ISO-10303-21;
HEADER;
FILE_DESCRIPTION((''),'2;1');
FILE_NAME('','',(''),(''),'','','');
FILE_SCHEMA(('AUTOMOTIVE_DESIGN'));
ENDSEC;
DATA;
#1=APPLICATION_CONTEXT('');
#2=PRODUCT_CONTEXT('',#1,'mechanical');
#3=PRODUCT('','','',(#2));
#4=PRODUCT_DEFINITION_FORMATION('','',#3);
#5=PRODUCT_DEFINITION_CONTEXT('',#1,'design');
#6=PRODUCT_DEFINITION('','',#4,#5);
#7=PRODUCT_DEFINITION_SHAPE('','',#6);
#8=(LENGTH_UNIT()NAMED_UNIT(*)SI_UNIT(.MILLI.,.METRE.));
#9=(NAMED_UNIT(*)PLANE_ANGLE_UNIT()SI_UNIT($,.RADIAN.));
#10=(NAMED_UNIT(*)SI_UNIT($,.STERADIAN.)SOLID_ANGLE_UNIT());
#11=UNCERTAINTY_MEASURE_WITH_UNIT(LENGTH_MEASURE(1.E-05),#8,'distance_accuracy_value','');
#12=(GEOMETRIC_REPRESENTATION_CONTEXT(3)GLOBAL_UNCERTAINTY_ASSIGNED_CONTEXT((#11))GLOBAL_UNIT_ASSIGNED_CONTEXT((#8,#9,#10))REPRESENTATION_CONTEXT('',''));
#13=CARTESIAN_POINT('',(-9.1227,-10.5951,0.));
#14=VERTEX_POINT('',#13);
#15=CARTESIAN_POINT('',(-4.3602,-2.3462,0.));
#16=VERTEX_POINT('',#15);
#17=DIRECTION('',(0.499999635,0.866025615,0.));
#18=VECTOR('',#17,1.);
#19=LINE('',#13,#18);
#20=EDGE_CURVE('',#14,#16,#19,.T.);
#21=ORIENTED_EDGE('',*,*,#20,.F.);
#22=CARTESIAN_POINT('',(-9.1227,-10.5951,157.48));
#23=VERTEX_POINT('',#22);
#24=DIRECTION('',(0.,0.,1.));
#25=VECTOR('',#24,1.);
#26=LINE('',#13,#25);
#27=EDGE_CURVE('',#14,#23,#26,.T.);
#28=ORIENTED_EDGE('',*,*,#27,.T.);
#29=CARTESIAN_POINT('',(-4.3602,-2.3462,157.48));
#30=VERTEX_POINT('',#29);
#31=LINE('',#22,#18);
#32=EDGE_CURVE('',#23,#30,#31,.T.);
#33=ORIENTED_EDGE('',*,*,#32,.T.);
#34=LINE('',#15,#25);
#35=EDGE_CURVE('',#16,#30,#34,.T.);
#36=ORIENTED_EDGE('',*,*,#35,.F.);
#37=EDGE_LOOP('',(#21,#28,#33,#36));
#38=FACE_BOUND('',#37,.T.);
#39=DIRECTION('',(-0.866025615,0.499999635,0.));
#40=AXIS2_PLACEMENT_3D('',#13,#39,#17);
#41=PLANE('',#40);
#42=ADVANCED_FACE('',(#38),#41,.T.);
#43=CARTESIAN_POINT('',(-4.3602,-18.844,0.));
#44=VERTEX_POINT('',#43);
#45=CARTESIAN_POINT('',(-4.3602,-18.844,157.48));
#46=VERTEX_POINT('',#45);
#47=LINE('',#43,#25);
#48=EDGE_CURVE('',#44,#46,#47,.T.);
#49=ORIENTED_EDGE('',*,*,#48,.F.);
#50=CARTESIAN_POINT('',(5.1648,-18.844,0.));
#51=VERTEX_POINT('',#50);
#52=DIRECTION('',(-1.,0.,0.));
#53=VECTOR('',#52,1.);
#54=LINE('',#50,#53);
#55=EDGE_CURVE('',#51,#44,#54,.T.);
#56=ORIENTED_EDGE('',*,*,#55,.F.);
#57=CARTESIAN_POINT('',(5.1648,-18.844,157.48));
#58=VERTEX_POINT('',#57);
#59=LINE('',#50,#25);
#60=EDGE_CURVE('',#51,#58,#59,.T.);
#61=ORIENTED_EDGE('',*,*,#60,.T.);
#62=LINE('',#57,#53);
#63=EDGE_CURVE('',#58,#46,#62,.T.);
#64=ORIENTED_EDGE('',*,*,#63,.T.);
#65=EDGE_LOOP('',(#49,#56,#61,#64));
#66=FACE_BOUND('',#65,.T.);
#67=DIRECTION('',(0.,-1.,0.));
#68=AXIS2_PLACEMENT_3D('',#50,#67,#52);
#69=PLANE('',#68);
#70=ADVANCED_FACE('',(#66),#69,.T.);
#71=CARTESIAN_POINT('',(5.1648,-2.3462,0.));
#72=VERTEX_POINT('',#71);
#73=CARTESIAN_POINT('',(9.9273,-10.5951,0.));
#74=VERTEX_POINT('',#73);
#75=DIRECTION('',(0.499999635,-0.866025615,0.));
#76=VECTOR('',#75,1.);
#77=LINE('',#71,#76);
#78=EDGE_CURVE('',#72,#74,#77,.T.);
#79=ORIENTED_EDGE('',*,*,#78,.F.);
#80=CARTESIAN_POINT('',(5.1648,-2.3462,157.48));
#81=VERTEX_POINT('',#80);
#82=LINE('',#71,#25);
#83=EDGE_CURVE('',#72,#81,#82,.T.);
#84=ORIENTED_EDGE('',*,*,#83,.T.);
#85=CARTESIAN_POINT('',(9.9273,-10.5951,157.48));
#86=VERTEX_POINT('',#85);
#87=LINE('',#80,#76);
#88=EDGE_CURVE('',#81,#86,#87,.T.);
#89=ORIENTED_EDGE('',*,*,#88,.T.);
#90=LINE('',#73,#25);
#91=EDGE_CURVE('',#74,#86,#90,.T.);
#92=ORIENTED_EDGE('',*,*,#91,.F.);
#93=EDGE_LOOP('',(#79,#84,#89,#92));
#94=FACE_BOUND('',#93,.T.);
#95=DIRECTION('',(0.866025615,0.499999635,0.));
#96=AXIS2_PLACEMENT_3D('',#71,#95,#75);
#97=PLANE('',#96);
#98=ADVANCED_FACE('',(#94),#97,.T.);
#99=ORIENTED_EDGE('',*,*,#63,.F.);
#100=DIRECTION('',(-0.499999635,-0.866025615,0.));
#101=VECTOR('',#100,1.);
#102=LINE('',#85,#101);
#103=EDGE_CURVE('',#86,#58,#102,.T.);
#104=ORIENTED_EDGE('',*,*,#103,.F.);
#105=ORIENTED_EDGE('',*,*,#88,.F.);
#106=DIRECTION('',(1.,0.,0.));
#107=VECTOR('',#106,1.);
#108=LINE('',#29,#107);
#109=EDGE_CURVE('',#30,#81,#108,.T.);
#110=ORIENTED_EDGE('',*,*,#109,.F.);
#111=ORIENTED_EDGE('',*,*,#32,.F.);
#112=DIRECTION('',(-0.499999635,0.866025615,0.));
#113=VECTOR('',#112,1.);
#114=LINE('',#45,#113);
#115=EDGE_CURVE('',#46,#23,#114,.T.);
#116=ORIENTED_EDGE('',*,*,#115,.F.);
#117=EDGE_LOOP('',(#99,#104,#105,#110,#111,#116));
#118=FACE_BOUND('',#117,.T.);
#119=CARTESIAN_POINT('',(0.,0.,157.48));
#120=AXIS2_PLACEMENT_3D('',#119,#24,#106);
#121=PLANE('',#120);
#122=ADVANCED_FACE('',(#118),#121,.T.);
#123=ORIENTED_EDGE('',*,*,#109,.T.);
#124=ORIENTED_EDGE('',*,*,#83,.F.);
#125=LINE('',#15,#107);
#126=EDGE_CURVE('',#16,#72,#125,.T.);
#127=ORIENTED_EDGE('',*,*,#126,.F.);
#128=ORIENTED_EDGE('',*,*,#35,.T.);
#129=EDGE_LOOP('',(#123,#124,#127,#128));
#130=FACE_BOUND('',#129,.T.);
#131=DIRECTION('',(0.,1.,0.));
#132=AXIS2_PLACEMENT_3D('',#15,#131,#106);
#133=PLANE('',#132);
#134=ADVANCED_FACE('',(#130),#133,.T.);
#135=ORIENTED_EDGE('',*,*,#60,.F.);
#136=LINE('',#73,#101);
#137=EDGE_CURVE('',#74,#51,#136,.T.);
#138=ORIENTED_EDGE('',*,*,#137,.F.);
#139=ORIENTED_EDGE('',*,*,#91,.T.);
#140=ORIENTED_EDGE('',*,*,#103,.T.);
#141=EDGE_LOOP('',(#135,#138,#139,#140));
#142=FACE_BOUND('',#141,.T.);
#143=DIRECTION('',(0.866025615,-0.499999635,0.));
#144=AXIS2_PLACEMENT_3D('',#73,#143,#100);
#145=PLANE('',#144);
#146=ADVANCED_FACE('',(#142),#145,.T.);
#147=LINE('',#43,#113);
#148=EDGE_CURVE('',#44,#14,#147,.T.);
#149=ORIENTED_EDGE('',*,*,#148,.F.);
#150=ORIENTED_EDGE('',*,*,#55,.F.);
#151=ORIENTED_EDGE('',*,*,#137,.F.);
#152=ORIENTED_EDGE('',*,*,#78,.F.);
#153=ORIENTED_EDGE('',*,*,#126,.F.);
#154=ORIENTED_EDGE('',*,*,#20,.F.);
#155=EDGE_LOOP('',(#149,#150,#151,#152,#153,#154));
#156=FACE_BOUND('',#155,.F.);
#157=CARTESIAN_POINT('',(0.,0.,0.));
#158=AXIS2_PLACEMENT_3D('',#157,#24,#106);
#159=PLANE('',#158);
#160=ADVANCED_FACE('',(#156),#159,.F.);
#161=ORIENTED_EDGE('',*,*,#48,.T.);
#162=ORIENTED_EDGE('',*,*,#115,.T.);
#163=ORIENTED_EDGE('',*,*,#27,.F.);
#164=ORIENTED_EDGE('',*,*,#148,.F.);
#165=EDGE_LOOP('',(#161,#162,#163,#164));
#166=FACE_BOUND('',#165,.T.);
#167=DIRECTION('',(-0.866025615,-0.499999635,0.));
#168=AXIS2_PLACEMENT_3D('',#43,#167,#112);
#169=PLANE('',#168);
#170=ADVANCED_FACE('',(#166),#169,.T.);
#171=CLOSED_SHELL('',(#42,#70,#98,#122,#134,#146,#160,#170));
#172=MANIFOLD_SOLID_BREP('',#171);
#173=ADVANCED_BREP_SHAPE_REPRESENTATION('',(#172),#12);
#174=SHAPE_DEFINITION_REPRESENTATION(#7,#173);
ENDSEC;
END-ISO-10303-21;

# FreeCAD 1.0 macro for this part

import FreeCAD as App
import Part
import Sketcher
Q = App.Units.Quantity


def add_polygon(sketch, points):
    """Adds a closed chain of lines whose ends are joined by coincident constraints."""
    first, n = sketch.GeometryCount, len(points)
    for a, b in zip(points, points[1:] + points[:1]):
        sketch.addGeometry(Part.LineSegment(App.Vector(*a, 0), App.Vector(*b, 0)), False)
    for i in range(n):
        sketch.addConstraint(Sketcher.Constraint("Coincident", first + i, 2, first + (i + 1) % n, 1))

doc = App.newDocument("Part")
body = doc.addObject("PartDesign::Body", "Body")

# Sketch on XY plane
sketch1 = body.newObject("Sketcher::SketchObject", "Sketch")
sketch1.AttachmentSupport = (doc.getObject("XY_Plane"), [""])
sketch1.MapMode = "FlatFace"
add_polygon(sketch1, [(5, -2), (-4, -2), (-9, -11), (-4, -19), (5, -19), (10, -11)])  # lines 0-5
sketch1.addConstraint(Sketcher.Constraint("Horizontal", 0))
sketch1.addConstraint(Sketcher.Constraint("Horizontal", 3))
sketch1.addConstraint(Sketcher.Constraint("Parallel", 1, 4))
sketch1.addConstraint(Sketcher.Constraint("Parallel", 2, 5))
sketch1.addConstraint(Sketcher.Constraint("Horizontal", 1, 2, 4, 2))
sketch1.addConstraint(Sketcher.Constraint("Vertical", 0, 2, 2, 2))
sketch1.addConstraint(Sketcher.Constraint("Vertical", 3, 2, 5, 2))
sketch1.addConstraint(Sketcher.Constraint("Angle", 1, Q("-120 deg")))
sketch1.addConstraint(Sketcher.Constraint("DistanceX", 0, 2, 0, 1, Q("0.375 in")))
sketch1.addConstraint(Sketcher.Constraint("Distance", 1, Q("0.375 in")))
sketch1.addConstraint(Sketcher.Constraint("DistanceY", 2, 2, -1, 1, Q("0.7419 in")))
sketch1.addConstraint(Sketcher.Constraint("DistanceX", 0, 2, -1, 1, Q("4.3602 mm")))
pad1 = body.newObject("PartDesign::Pad", "Pad")
pad1.Profile = sketch1
pad1.Length = Q("6.2 in")

doc.recompute()
